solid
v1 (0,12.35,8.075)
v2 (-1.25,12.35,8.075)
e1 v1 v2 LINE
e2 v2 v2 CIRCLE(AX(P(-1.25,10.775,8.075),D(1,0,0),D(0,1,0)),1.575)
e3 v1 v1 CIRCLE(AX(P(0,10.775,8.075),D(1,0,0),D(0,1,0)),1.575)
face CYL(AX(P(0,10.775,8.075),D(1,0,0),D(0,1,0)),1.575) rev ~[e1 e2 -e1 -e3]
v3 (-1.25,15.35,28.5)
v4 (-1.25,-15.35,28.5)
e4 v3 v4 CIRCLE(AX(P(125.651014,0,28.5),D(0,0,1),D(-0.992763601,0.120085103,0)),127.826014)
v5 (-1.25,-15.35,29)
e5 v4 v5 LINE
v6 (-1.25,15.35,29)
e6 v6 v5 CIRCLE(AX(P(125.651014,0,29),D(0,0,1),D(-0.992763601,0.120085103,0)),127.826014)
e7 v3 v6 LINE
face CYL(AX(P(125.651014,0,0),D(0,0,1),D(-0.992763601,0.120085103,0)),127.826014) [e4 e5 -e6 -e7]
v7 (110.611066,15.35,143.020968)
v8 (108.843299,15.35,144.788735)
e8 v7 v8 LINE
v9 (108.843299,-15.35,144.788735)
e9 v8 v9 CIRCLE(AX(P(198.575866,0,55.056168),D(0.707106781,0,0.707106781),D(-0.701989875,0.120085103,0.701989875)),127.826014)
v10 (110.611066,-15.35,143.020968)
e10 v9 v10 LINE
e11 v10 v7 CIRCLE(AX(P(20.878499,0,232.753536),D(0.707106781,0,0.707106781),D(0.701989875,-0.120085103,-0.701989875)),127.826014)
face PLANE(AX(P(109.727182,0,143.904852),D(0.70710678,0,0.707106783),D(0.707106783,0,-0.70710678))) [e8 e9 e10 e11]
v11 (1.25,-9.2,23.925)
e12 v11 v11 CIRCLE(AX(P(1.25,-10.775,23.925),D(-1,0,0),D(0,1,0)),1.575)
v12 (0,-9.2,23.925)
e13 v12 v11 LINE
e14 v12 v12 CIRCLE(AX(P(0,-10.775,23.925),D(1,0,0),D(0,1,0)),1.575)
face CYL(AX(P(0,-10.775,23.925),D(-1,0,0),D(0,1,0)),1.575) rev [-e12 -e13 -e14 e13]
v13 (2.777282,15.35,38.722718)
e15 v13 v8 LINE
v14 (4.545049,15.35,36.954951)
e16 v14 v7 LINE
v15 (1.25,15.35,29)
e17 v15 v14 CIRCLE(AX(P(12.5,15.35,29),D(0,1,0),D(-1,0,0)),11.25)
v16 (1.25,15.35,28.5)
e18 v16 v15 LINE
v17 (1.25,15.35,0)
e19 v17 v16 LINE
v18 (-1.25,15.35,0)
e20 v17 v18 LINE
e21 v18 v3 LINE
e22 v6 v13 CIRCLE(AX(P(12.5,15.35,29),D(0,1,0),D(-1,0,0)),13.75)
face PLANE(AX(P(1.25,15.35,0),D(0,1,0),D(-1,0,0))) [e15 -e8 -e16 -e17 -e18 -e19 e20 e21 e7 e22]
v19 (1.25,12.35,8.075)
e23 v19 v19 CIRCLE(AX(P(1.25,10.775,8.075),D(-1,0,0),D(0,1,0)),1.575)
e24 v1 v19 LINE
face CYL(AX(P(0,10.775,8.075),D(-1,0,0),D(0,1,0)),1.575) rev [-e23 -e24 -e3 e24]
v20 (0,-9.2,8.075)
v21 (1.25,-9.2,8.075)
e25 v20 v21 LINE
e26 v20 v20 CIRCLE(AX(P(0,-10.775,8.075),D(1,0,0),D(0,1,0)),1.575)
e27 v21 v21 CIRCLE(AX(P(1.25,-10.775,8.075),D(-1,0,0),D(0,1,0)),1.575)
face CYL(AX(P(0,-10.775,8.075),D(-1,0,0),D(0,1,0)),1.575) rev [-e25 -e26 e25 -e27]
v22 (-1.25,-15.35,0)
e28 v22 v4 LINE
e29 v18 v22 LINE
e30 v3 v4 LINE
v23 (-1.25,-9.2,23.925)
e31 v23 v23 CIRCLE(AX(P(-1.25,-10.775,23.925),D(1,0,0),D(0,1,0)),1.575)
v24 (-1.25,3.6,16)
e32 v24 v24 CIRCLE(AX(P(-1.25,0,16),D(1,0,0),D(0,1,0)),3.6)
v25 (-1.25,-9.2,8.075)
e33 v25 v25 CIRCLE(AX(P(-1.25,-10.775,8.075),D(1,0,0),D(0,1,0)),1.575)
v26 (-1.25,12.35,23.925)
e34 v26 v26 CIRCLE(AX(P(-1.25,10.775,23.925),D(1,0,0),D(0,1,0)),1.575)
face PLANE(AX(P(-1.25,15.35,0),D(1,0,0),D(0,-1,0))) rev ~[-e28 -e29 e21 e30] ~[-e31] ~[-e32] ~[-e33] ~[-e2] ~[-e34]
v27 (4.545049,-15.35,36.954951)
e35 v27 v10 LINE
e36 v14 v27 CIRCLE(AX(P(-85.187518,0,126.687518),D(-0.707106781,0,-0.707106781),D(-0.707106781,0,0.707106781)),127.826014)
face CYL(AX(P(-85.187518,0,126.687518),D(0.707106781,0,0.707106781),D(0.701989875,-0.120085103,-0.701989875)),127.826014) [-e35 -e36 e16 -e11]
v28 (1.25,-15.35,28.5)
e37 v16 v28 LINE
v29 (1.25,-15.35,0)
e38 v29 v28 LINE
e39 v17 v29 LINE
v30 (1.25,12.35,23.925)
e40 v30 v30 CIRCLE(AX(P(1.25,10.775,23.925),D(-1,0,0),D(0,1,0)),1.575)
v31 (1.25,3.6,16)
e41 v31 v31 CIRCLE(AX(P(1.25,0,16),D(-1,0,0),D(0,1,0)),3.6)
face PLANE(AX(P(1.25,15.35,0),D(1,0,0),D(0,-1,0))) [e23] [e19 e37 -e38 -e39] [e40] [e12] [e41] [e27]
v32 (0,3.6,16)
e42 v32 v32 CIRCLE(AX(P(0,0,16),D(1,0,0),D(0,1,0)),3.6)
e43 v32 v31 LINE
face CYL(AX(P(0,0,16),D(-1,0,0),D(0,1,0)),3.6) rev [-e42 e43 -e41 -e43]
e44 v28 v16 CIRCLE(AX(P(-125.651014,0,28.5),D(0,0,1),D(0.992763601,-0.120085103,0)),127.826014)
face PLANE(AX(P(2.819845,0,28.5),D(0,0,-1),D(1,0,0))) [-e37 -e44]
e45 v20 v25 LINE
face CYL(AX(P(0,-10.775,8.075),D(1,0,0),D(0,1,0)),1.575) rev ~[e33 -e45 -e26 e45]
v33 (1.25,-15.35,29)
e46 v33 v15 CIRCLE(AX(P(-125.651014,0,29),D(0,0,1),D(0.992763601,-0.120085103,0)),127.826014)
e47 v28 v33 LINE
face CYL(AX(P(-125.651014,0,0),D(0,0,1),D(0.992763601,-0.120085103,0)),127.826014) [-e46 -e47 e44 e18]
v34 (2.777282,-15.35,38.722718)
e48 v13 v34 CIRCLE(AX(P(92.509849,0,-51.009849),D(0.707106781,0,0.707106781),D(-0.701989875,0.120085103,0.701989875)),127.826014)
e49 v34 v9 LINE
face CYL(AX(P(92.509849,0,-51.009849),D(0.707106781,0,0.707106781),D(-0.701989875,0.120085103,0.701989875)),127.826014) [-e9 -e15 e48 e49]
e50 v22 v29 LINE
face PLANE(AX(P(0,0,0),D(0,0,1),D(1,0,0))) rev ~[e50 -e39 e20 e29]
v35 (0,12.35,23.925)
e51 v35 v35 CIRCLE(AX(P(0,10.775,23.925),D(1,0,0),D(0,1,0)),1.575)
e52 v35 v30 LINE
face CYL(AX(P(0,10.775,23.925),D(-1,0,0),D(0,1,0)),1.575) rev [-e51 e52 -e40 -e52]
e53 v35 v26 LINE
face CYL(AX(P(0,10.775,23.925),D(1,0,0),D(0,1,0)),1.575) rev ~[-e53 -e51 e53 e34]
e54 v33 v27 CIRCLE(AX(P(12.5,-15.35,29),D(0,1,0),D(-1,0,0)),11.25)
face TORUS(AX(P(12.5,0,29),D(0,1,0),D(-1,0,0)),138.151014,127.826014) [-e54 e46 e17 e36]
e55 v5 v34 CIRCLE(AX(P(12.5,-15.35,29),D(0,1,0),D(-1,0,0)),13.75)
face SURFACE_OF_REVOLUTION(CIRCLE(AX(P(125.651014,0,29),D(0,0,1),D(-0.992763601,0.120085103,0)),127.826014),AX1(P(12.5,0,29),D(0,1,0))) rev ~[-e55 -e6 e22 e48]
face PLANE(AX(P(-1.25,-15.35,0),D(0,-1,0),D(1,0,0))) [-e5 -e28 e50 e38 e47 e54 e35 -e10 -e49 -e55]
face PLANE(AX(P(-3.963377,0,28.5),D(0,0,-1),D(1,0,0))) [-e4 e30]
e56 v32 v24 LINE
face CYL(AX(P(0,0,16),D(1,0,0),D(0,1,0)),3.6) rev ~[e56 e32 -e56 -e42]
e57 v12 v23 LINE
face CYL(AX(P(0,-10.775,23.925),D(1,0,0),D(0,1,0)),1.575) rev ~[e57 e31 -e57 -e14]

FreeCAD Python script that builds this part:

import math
import FreeCAD as App
import Part
import Sketcher

V = App.Vector
Q = App.Units.Quantity


def add_polygon(sketch, points):
    """Adds a closed chain of lines whose ends are joined by coincident constraints."""
    first, n = sketch.GeometryCount, len(points)
    for a, b in zip(points, points[1:] + points[:1]):
        sketch.addGeometry(Part.LineSegment(App.Vector(*a, 0), App.Vector(*b, 0)), False)
    for i in range(n):
        sketch.addConstraint(Sketcher.Constraint("Coincident", first + i, 2, first + (i + 1) % n, 1))

doc = App.newDocument("Part")
body = doc.addObject("PartDesign::Body", "Body")

sketch1 = body.newObject("Sketcher::SketchObject", "Sketch")
sketch1.AttachmentSupport = (doc.getObject("XY_Plane"), [""])
sketch1.MapMode = "FlatFace"
sketch1.addGeometry([
    Part.ArcOfCircle(Part.Circle(V(125.7, 0, 0), V(0, 0, 1), 127.8), math.radians(173.1), math.radians(186.9)),
    Part.LineSegment(V(-1.2, -15.3, 0), V(1.2, -15.3, 0)),
    Part.ArcOfCircle(Part.Circle(V(-125.7, 0, 0), V(0, 0, 1), 127.8), math.radians(-6.9), math.radians(6.9)),
    Part.LineSegment(V(1.2, 15.3, 0), V(-1.2, 15.3, 0)),
], False)
sketch1.addConstraint([
    Sketcher.Constraint("Coincident", 0, 2, 1, 1),
    Sketcher.Constraint("Coincident", 1, 2, 2, 1),
    Sketcher.Constraint("Coincident", 2, 2, 3, 1),
    Sketcher.Constraint("Coincident", 3, 2, 0, 1),
    Sketcher.Constraint("Horizontal", 1),
    Sketcher.Constraint("Horizontal", 3),
    Sketcher.Constraint("Equal", 0, 2),
    Sketcher.Constraint("Symmetric", 0, 3, 2, 3, -1, 1),
    Sketcher.Constraint("Symmetric", 1, 2, 2, 2, -1),
    Sketcher.Constraint("DistanceX", 1, 1, 1, 2, Q("2.5 mm")),
    Sketcher.Constraint("DistanceY", 1, 2, 2, 2, Q("30.7 mm")),
    Sketcher.Constraint("Radius", 0, Q("127.826014 mm")),
])

sketch2 = body.newObject("Sketcher::SketchObject", "Sketch001")
sketch2.AttachmentSupport = (doc.getObject("XZ_Plane"), [""])
sketch2.MapMode = "FlatFace"
sketch2.addGeometry([
    Part.LineSegment(V(0, 0, 0), V(0, 29, 0)),
    Part.ArcOfCircle(Part.Circle(V(12, 29, 0), V(0, 0, 1), 12), math.radians(135), math.radians(180)),
    Part.LineSegment(V(4, 38, 0), V(110, 144, 0)),
], False)
sketch2.addConstraint([
    Sketcher.Constraint("Tangent", 0, 2, 1, 2),
    Sketcher.Constraint("Tangent", 1, 1, 2, 1),
    Sketcher.Constraint("Vertical", 0),
    Sketcher.Constraint("Coincident", 0, 1, -1, 1),
    Sketcher.Constraint("Radius", 1, Q("12.5 mm")),
    Sketcher.Constraint("DistanceY", 0, 1, 0, 2, Q("29 mm")),
    Sketcher.Constraint("Angle", 2, Q("45 deg")),
    Sketcher.Constraint("Distance", 2, Q("150 mm")),
])
doc.recompute()

additivepipe = body.newObject("PartDesign::AdditivePipe", "AdditivePipe")
additivepipe.Profile = sketch1
additivepipe.Spine = (sketch2, ["Edge1", "Edge2", "Edge3"])

sketch3 = body.newObject("Sketcher::SketchObject", "Sketch002")
sketch3.AttachmentSupport = (doc.getObject("XY_Plane"), [""])
sketch3.MapMode = "FlatFace"
add_polygon(sketch3, [(-6.7, -15.3), (-6.7, 15.3), (-1.2, 15.3), (-1.2, -15.3)])
add_polygon(sketch3, [(1.2, -15.3), (1.2, 15.3), (4.4, 15.3), (4.4, -15.3)])
sketch3.addConstraint([
    Sketcher.Constraint("Vertical", 0),
    Sketcher.Constraint("Horizontal", 1),
    Sketcher.Constraint("Vertical", 2),
    Sketcher.Constraint("Horizontal", 3),
    Sketcher.Constraint("Vertical", 4),
    Sketcher.Constraint("Horizontal", 5),
    Sketcher.Constraint("Vertical", 6),
    Sketcher.Constraint("Horizontal", 7),
    Sketcher.Constraint("Symmetric", 2, 2, 4, 2, -1, 1),
    Sketcher.Constraint("Horizontal", 1, 2, 4, 2),
    Sketcher.Constraint("Horizontal", 3, 2, 6, 2),
    Sketcher.Constraint("DistanceY", 0, 1, 0, 2, Q("30.7 mm")),
    Sketcher.Constraint("DistanceX", 1, 2, 4, 2, Q("2.5 mm")),
    Sketcher.Constraint("DistanceX", 5, 1, 5, 2, Q("3.139689 mm")),
    Sketcher.Constraint("DistanceX", 1, 1, 1, 2, Q("5.426754 mm")),
])
pocket1 = body.newObject("PartDesign::Pocket", "Pocket")
pocket1.Profile = sketch3
pocket1.Length = 28.5
pocket1.Reversed = True

sketch4 = body.newObject("Sketcher::SketchObject", "Sketch003")
sketch4.AttachmentSupport = (doc.getObject("YZ_Plane"), [""])
sketch4.MapMode = "FlatFace"
sketch4.addGeometry(Part.Circle(V(0, 16, 0), V(0, 0, 1), 3.6), False)
sketch4.addConstraint([
    Sketcher.Constraint("PointOnObject", 0, 3, -2),
    Sketcher.Constraint("Diameter", 0, Q("7.2 mm")),
    Sketcher.Constraint("DistanceY", -1, 1, 0, 3, Q("16 mm")),
])
pocket2 = body.newObject("PartDesign::Pocket", "Pocket001")
pocket2.Profile = sketch4
pocket2.Type = "ThroughAll"
pocket2.Midplane = True

sketch5 = body.newObject("Sketcher::SketchObject", "Sketch004")
sketch5.AttachmentSupport = (doc.getObject("YZ_Plane"), [""])
sketch5.MapMode = "FlatFace"
sketch5.addGeometry([
    Part.Circle(V(-10.8, 23.9, 0), V(0, 0, 1), 1.6),
    Part.Circle(V(10.8, 23.9, 0), V(0, 0, 1), 1.6),
    Part.Circle(V(10.8, 8.1, 0), V(0, 0, 1), 1.6),
    Part.Circle(V(-10.8, 8.1, 0), V(0, 0, 1), 1.6),
], False)
sketch5.addConstraint([
    Sketcher.Constraint("Equal", 0, 1),
    Sketcher.Constraint("Equal", 1, 2),
    Sketcher.Constraint("Equal", 2, 3),
    Sketcher.Constraint("Symmetric", 0, 3, 1, 3, -2),
    Sketcher.Constraint("Symmetric", 2, 3, 3, 3, -2),
    Sketcher.Constraint("Vertical", 1, 3, 2, 3),
    Sketcher.Constraint("Diameter", 0, Q("3.15 mm")),
    Sketcher.Constraint("DistanceX", 0, 3, 1, 3, Q("21.55 mm")),
    Sketcher.Constraint("DistanceY", 2, 3, 1, 3, Q("15.85 mm")),
    Sketcher.Constraint("DistanceY", -1, 1, 0, 3, Q("23.925 mm")),
])
pocket3 = body.newObject("PartDesign::Pocket", "Pocket002")
pocket3.Profile = sketch5
pocket3.Type = "ThroughAll"
pocket3.Midplane = True

doc.recompute()
